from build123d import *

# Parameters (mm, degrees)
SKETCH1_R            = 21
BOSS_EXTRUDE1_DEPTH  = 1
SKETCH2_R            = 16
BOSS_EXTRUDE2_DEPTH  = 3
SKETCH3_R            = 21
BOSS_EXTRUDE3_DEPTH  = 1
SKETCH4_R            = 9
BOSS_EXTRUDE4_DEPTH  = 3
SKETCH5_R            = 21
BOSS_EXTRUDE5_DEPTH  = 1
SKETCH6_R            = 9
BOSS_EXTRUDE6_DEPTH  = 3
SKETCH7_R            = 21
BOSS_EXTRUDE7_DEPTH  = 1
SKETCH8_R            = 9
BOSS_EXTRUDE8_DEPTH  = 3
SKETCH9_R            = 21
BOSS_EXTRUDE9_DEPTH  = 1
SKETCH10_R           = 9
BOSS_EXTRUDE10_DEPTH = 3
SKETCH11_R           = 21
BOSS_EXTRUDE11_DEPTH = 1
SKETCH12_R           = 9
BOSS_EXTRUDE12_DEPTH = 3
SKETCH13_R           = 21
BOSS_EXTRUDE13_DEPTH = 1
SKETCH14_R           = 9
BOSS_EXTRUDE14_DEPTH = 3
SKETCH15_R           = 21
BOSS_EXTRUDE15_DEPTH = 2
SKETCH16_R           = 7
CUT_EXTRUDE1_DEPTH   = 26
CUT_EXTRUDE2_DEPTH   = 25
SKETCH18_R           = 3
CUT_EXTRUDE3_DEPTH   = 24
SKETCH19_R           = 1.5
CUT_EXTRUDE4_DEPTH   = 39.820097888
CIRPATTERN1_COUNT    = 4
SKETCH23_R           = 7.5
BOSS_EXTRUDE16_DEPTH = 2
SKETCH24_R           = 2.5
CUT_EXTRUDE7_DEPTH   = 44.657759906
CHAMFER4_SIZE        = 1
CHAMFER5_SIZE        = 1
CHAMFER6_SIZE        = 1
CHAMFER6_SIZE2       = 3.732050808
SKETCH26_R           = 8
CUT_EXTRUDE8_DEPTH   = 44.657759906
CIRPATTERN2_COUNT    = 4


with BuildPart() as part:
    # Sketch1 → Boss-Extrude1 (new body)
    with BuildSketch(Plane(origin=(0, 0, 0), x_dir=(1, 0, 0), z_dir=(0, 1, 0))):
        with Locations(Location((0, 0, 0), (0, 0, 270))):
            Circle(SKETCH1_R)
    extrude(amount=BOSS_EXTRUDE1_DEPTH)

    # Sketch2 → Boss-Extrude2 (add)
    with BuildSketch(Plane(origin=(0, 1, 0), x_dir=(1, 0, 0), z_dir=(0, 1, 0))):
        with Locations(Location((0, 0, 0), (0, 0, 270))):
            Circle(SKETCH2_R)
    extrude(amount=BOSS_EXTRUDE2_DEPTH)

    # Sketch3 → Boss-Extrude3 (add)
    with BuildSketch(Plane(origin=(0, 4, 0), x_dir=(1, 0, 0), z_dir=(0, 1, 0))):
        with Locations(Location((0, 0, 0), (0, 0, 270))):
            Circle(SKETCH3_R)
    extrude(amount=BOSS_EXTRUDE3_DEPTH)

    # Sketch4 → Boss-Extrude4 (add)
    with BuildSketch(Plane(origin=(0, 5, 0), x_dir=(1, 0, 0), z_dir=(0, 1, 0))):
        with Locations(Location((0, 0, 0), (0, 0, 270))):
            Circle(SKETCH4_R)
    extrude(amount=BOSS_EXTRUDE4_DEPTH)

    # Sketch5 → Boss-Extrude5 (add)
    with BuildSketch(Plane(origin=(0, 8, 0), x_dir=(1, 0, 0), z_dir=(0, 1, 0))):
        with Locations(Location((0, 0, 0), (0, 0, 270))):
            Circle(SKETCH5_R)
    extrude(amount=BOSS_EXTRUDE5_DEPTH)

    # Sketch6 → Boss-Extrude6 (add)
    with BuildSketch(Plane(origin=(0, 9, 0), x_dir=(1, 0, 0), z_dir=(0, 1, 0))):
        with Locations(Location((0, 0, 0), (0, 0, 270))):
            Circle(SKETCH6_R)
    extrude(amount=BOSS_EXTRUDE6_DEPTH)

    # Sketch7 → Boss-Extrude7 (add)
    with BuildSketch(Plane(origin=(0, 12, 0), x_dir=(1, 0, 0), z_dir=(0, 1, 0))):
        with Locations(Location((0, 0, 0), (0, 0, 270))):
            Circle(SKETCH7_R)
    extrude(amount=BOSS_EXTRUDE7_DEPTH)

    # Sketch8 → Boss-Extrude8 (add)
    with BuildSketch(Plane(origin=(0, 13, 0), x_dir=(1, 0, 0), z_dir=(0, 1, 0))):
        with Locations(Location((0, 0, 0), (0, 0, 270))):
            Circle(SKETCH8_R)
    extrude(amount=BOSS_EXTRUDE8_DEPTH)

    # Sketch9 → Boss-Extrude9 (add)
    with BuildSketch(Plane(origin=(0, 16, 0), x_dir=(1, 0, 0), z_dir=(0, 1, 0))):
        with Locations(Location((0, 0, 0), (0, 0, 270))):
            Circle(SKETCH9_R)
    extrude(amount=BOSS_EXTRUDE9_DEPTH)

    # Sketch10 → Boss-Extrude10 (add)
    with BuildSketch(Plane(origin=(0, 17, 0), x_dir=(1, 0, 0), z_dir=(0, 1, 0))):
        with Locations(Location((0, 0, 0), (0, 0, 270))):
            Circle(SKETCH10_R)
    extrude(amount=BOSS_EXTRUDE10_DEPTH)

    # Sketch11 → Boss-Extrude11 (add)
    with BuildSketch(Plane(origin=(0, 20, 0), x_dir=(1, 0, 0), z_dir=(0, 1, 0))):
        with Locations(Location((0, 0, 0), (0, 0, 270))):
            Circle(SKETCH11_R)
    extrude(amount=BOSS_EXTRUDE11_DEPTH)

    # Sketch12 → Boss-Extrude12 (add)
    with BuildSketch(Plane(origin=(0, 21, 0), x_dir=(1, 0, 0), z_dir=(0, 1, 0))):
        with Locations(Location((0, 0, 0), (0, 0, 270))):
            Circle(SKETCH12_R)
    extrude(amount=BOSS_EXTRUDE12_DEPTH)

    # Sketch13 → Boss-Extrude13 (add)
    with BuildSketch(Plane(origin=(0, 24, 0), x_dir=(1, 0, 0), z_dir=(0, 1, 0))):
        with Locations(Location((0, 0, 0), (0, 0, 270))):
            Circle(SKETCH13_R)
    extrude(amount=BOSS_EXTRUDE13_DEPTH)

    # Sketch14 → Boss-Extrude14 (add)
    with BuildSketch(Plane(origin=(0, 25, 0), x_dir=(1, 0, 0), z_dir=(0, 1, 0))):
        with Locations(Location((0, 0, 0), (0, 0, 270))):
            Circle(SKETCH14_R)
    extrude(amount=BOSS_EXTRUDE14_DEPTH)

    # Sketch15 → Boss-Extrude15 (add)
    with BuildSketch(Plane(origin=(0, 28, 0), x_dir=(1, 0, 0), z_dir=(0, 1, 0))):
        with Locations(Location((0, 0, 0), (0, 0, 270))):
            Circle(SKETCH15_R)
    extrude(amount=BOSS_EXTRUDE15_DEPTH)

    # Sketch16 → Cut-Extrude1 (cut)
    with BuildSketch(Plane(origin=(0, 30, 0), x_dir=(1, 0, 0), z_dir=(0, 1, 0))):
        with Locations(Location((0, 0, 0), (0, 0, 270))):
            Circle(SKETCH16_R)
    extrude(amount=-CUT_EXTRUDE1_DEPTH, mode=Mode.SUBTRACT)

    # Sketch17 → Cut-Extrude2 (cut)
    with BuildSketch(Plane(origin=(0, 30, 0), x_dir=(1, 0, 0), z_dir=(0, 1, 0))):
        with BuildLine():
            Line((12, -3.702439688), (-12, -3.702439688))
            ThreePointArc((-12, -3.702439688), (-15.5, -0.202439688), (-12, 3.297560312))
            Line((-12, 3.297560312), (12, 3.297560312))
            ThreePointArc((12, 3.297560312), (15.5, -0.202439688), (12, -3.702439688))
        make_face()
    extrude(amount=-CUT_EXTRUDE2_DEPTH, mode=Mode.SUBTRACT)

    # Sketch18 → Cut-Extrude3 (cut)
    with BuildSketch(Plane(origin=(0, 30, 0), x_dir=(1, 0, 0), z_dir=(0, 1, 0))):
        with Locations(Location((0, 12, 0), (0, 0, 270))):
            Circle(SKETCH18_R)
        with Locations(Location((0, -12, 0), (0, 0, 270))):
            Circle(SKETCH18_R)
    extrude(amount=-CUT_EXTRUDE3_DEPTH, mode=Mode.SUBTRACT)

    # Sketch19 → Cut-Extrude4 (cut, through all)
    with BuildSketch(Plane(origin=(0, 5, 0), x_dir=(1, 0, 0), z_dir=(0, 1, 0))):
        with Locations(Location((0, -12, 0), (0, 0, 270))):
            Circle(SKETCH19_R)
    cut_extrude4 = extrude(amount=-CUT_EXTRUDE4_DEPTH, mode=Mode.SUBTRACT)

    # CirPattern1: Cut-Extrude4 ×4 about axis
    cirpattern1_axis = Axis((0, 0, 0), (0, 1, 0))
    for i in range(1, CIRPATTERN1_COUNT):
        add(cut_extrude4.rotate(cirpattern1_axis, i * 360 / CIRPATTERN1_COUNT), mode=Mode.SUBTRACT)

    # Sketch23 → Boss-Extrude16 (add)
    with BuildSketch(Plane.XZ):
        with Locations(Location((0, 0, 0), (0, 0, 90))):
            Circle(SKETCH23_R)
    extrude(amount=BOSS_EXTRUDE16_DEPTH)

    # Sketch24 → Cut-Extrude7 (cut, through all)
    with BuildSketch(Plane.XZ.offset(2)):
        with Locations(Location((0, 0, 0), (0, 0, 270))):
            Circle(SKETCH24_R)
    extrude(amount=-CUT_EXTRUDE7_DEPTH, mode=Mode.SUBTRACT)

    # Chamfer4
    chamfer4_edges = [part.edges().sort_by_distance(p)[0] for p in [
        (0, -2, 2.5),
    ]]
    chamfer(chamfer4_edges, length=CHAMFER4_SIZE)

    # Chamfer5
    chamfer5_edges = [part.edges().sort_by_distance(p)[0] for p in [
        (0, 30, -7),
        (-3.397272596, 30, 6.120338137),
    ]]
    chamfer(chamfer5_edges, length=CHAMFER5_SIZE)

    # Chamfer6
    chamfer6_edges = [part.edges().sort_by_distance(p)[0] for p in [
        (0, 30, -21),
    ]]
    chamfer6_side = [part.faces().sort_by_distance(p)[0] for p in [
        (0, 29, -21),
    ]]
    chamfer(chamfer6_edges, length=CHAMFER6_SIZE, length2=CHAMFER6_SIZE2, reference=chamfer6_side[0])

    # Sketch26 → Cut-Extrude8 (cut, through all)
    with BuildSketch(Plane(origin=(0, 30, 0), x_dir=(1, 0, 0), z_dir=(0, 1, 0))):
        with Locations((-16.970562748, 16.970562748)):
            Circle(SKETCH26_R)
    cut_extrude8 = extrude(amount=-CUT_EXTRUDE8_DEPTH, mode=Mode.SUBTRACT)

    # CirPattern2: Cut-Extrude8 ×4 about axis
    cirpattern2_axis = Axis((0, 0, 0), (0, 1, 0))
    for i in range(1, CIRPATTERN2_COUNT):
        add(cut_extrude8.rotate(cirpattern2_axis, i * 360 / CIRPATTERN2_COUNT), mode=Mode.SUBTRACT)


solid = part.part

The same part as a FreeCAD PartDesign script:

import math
import FreeCAD as App
import Part
import Sketcher

V = App.Vector
Q = App.Units.Quantity


def edges_at(feature, points):
    """Names of the edges that pass closest to the given points."""
    edges = feature.Shape.Edges
    near = lambda p: min(range(len(edges)), key=lambda i: edges[i].distToShape(Part.Vertex(*p))[0])
    return sorted({f"Edge{near(p) + 1}" for p in points})

doc = App.newDocument("Part")
body = doc.addObject("PartDesign::Body", "Body")

# Sketch on XZ plane
sketch1 = doc.addObject("Sketcher::SketchObject", "Sketch")
body.addObject(sketch1)
sketch1.AttachmentSupport = (doc.XZ_Plane, [""])
sketch1.MapMode = "FlatFace"
sketch1.addGeometry(Part.Circle(V(0, 0, 0), V(0, 0, 1), 21), False)
sketch1.addConstraint([
    Sketcher.Constraint("Coincident", 0, 3, -1, 1),
    Sketcher.Constraint("Diameter", 0, Q("42 mm")),
])
pad1 = doc.addObject("PartDesign::Pad", "Pad")
body.addObject(pad1)
pad1.Profile = sketch1
pad1.Length = 1
pad1.Reversed = True

# Sketch on XZ plane
sketch2 = doc.addObject("Sketcher::SketchObject", "Sketch001")
body.addObject(sketch2)
sketch2.AttachmentSupport = (doc.XZ_Plane, [""])
sketch2.MapMode = "FlatFace"
sketch2.AttachmentOffset = App.Placement(V(0, 0, -1), App.Rotation())
sketch2.addGeometry(Part.Circle(V(0, 0, 0), V(0, 0, 1), 16), False)
sketch2.addConstraint([
    Sketcher.Constraint("Coincident", 0, 3, -1, 1),
    Sketcher.Constraint("Diameter", 0, Q("32 mm")),
])
pad2 = doc.addObject("PartDesign::Pad", "Pad001")
body.addObject(pad2)
pad2.Profile = sketch2
pad2.Length = 3
pad2.Reversed = True

# Sketch on XZ plane
sketch3 = doc.addObject("Sketcher::SketchObject", "Sketch002")
body.addObject(sketch3)
sketch3.AttachmentSupport = (doc.XZ_Plane, [""])
sketch3.MapMode = "FlatFace"
sketch3.AttachmentOffset = App.Placement(V(0, 0, -4), App.Rotation())
sketch3.addGeometry(Part.Circle(V(0, 0, 0), V(0, 0, 1), 21), False)
sketch3.addConstraint([
    Sketcher.Constraint("Coincident", 0, 3, -1, 1),
    Sketcher.Constraint("Diameter", 0, Q("42 mm")),
])
pad3 = doc.addObject("PartDesign::Pad", "Pad002")
body.addObject(pad3)
pad3.Profile = sketch3
pad3.Length = 1
pad3.Reversed = True

# Sketch on XZ plane
sketch4 = doc.addObject("Sketcher::SketchObject", "Sketch003")
body.addObject(sketch4)
sketch4.AttachmentSupport = (doc.XZ_Plane, [""])
sketch4.MapMode = "FlatFace"
sketch4.AttachmentOffset = App.Placement(V(0, 0, -5), App.Rotation())
sketch4.addGeometry(Part.Circle(V(0, 0, 0), V(0, 0, 1), 9), False)
sketch4.addConstraint([
    Sketcher.Constraint("Coincident", 0, 3, -1, 1),
    Sketcher.Constraint("Diameter", 0, Q("18 mm")),
])
pad4 = doc.addObject("PartDesign::Pad", "Pad003")
body.addObject(pad4)
pad4.Profile = sketch4
pad4.Length = 3
pad4.Reversed = True

# Sketch on XZ plane
sketch5 = doc.addObject("Sketcher::SketchObject", "Sketch004")
body.addObject(sketch5)
sketch5.AttachmentSupport = (doc.XZ_Plane, [""])
sketch5.MapMode = "FlatFace"
sketch5.AttachmentOffset = App.Placement(V(0, 0, -8), App.Rotation())
sketch5.addGeometry(Part.Circle(V(0, 0, 0), V(0, 0, 1), 21), False)
sketch5.addConstraint([
    Sketcher.Constraint("Coincident", 0, 3, -1, 1),
    Sketcher.Constraint("Diameter", 0, Q("42 mm")),
])
pad5 = doc.addObject("PartDesign::Pad", "Pad004")
body.addObject(pad5)
pad5.Profile = sketch5
pad5.Length = 1
pad5.Reversed = True

# Sketch on XZ plane
sketch6 = doc.addObject("Sketcher::SketchObject", "Sketch005")
body.addObject(sketch6)
sketch6.AttachmentSupport = (doc.XZ_Plane, [""])
sketch6.MapMode = "FlatFace"
sketch6.AttachmentOffset = App.Placement(V(0, 0, -9), App.Rotation())
sketch6.addGeometry(Part.Circle(V(0, 0, 0), V(0, 0, 1), 9), False)
sketch6.addConstraint([
    Sketcher.Constraint("Coincident", 0, 3, -1, 1),
    Sketcher.Constraint("Diameter", 0, Q("18 mm")),
])
pad6 = doc.addObject("PartDesign::Pad", "Pad005")
body.addObject(pad6)
pad6.Profile = sketch6
pad6.Length = 3
pad6.Reversed = True

# Sketch on XZ plane
sketch7 = doc.addObject("Sketcher::SketchObject", "Sketch006")
body.addObject(sketch7)
sketch7.AttachmentSupport = (doc.XZ_Plane, [""])
sketch7.MapMode = "FlatFace"
sketch7.AttachmentOffset = App.Placement(V(0, 0, -12), App.Rotation())
sketch7.addGeometry(Part.Circle(V(0, 0, 0), V(0, 0, 1), 21), False)
sketch7.addConstraint([
    Sketcher.Constraint("Coincident", 0, 3, -1, 1),
    Sketcher.Constraint("Diameter", 0, Q("42 mm")),
])
pad7 = doc.addObject("PartDesign::Pad", "Pad006")
body.addObject(pad7)
pad7.Profile = sketch7
pad7.Length = 1
pad7.Reversed = True

# Sketch on XZ plane
sketch8 = doc.addObject("Sketcher::SketchObject", "Sketch007")
body.addObject(sketch8)
sketch8.AttachmentSupport = (doc.XZ_Plane, [""])
sketch8.MapMode = "FlatFace"
sketch8.AttachmentOffset = App.Placement(V(0, 0, -13), App.Rotation())
sketch8.addGeometry(Part.Circle(V(0, 0, 0), V(0, 0, 1), 9), False)
sketch8.addConstraint([
    Sketcher.Constraint("Coincident", 0, 3, -1, 1),
    Sketcher.Constraint("Diameter", 0, Q("18 mm")),
])
pad8 = doc.addObject("PartDesign::Pad", "Pad007")
body.addObject(pad8)
pad8.Profile = sketch8
pad8.Length = 3
pad8.Reversed = True

# Sketch on XZ plane
sketch9 = doc.addObject("Sketcher::SketchObject", "Sketch008")
body.addObject(sketch9)
sketch9.AttachmentSupport = (doc.XZ_Plane, [""])
sketch9.MapMode = "FlatFace"
sketch9.AttachmentOffset = App.Placement(V(0, 0, -16), App.Rotation())
sketch9.addGeometry(Part.Circle(V(0, 0, 0), V(0, 0, 1), 21), False)
sketch9.addConstraint([
    Sketcher.Constraint("Coincident", 0, 3, -1, 1),
    Sketcher.Constraint("Diameter", 0, Q("42 mm")),
])
pad9 = doc.addObject("PartDesign::Pad", "Pad008")
body.addObject(pad9)
pad9.Profile = sketch9
pad9.Length = 1
pad9.Reversed = True

# Sketch on XZ plane
sketch10 = doc.addObject("Sketcher::SketchObject", "Sketch009")
body.addObject(sketch10)
sketch10.AttachmentSupport = (doc.XZ_Plane, [""])
sketch10.MapMode = "FlatFace"
sketch10.AttachmentOffset = App.Placement(V(0, 0, -17), App.Rotation())
sketch10.addGeometry(Part.Circle(V(0, 0, 0), V(0, 0, 1), 9), False)
sketch10.addConstraint([
    Sketcher.Constraint("Coincident", 0, 3, -1, 1),
    Sketcher.Constraint("Diameter", 0, Q("18 mm")),
])
pad10 = doc.addObject("PartDesign::Pad", "Pad009")
body.addObject(pad10)
pad10.Profile = sketch10
pad10.Length = 3
pad10.Reversed = True

# Sketch on XZ plane
sketch11 = doc.addObject("Sketcher::SketchObject", "Sketch010")
body.addObject(sketch11)
sketch11.AttachmentSupport = (doc.XZ_Plane, [""])
sketch11.MapMode = "FlatFace"
sketch11.AttachmentOffset = App.Placement(V(0, 0, -20), App.Rotation())
sketch11.addGeometry(Part.Circle(V(0, 0, 0), V(0, 0, 1), 21), False)
sketch11.addConstraint([
    Sketcher.Constraint("Coincident", 0, 3, -1, 1),
    Sketcher.Constraint("Diameter", 0, Q("42 mm")),
])
pad11 = doc.addObject("PartDesign::Pad", "Pad010")
body.addObject(pad11)
pad11.Profile = sketch11
pad11.Length = 1
pad11.Reversed = True

# Sketch on XZ plane
sketch12 = doc.addObject("Sketcher::SketchObject", "Sketch011")
body.addObject(sketch12)
sketch12.AttachmentSupport = (doc.XZ_Plane, [""])
sketch12.MapMode = "FlatFace"
sketch12.AttachmentOffset = App.Placement(V(0, 0, -21), App.Rotation())
sketch12.addGeometry(Part.Circle(V(0, 0, 0), V(0, 0, 1), 9), False)
sketch12.addConstraint([
    Sketcher.Constraint("Coincident", 0, 3, -1, 1),
    Sketcher.Constraint("Diameter", 0, Q("18 mm")),
])
pad12 = doc.addObject("PartDesign::Pad", "Pad011")
body.addObject(pad12)
pad12.Profile = sketch12
pad12.Length = 3
pad12.Reversed = True

# Sketch on XZ plane
sketch13 = doc.addObject("Sketcher::SketchObject", "Sketch012")
body.addObject(sketch13)
sketch13.AttachmentSupport = (doc.XZ_Plane, [""])
sketch13.MapMode = "FlatFace"
sketch13.AttachmentOffset = App.Placement(V(0, 0, -24), App.Rotation())
sketch13.addGeometry(Part.Circle(V(0, 0, 0), V(0, 0, 1), 21), False)
sketch13.addConstraint([
    Sketcher.Constraint("Coincident", 0, 3, -1, 1),
    Sketcher.Constraint("Diameter", 0, Q("42 mm")),
])
pad13 = doc.addObject("PartDesign::Pad", "Pad012")
body.addObject(pad13)
pad13.Profile = sketch13
pad13.Length = 1
pad13.Reversed = True

# Sketch on XZ plane
sketch14 = doc.addObject("Sketcher::SketchObject", "Sketch013")
body.addObject(sketch14)
sketch14.AttachmentSupport = (doc.XZ_Plane, [""])
sketch14.MapMode = "FlatFace"
sketch14.AttachmentOffset = App.Placement(V(0, 0, -25), App.Rotation())
sketch14.addGeometry(Part.Circle(V(0, 0, 0), V(0, 0, 1), 9), False)
sketch14.addConstraint([
    Sketcher.Constraint("Coincident", 0, 3, -1, 1),
    Sketcher.Constraint("Diameter", 0, Q("18 mm")),
])
pad14 = doc.addObject("PartDesign::Pad", "Pad013")
body.addObject(pad14)
pad14.Profile = sketch14
pad14.Length = 3
pad14.Reversed = True

# Sketch on XZ plane
sketch15 = doc.addObject("Sketcher::SketchObject", "Sketch014")
body.addObject(sketch15)
sketch15.AttachmentSupport = (doc.XZ_Plane, [""])
sketch15.MapMode = "FlatFace"
sketch15.AttachmentOffset = App.Placement(V(0, 0, -28), App.Rotation())
sketch15.addGeometry(Part.Circle(V(0, 0, 0), V(0, 0, 1), 21), False)
sketch15.addConstraint([
    Sketcher.Constraint("Coincident", 0, 3, -1, 1),
    Sketcher.Constraint("Diameter", 0, Q("42 mm")),
])
pad15 = doc.addObject("PartDesign::Pad", "Pad014")
body.addObject(pad15)
pad15.Profile = sketch15
pad15.Length = 2
pad15.Reversed = True

# Sketch on XZ plane
sketch16 = doc.addObject("Sketcher::SketchObject", "Sketch015")
body.addObject(sketch16)
sketch16.AttachmentSupport = (doc.XZ_Plane, [""])
sketch16.MapMode = "FlatFace"
sketch16.AttachmentOffset = App.Placement(V(0, 0, -30), App.Rotation())
sketch16.addGeometry(Part.Circle(V(0, 0, 0), V(0, 0, 1), 7), False)
sketch16.addConstraint([
    Sketcher.Constraint("Coincident", 0, 3, -1, 1),
    Sketcher.Constraint("Diameter", 0, Q("14 mm")),
])
pocket1 = doc.addObject("PartDesign::Pocket", "Pocket")
body.addObject(pocket1)
pocket1.Profile = sketch16
pocket1.Length = 26
pocket1.Reversed = True

# Sketch on XZ plane
sketch17 = doc.addObject("Sketcher::SketchObject", "Sketch016")
body.addObject(sketch17)
sketch17.AttachmentSupport = (doc.XZ_Plane, [""])
sketch17.MapMode = "FlatFace"
sketch17.AttachmentOffset = App.Placement(V(0, 0, -30), App.Rotation())
sketch17.addGeometry([
    Part.LineSegment(V(-12, 3.70244, 0), V(12, 3.70244, 0)),
    Part.ArcOfCircle(Part.Circle(V(12, 0.20244, 0), V(0, 0, 1), 3.5), math.radians(-90), math.radians(90)),
    Part.LineSegment(V(12, -3.29756, 0), V(-12, -3.29756, 0)),
    Part.ArcOfCircle(Part.Circle(V(-12, 0.20244, 0), V(0, 0, 1), 3.5), math.radians(90), math.radians(270)),
], False)
sketch17.addConstraint([
    Sketcher.Constraint("Tangent", 0, 2, 1, 2),
    Sketcher.Constraint("Tangent", 1, 1, 2, 1),
    Sketcher.Constraint("Tangent", 2, 2, 3, 2),
    Sketcher.Constraint("Tangent", 3, 1, 0, 1),
    Sketcher.Constraint("Horizontal", 0),
    Sketcher.Constraint("Horizontal", 2),
    Sketcher.Constraint("Radius", 1, Q("3.5 mm")),
    Sketcher.Constraint("DistanceX", 0, 1, 0, 2, Q("24 mm")),
    Sketcher.Constraint("DistanceX", -1, 1, 1, 3, Q("12 mm")),
    Sketcher.Constraint("DistanceY", -1, 1, 1, 3, Q("0.20244 mm")),
])
pocket2 = doc.addObject("PartDesign::Pocket", "Pocket001")
body.addObject(pocket2)
pocket2.Profile = sketch17
pocket2.Length = 25
pocket2.Reversed = True

# Sketch on XZ plane
sketch18 = doc.addObject("Sketcher::SketchObject", "Sketch017")
body.addObject(sketch18)
sketch18.AttachmentSupport = (doc.XZ_Plane, [""])
sketch18.MapMode = "FlatFace"
sketch18.AttachmentOffset = App.Placement(V(0, 0, -30), App.Rotation())
sketch18.addGeometry([
    Part.Circle(V(0, -12, 0), V(0, 0, 1), 3),
    Part.Circle(V(0, 12, 0), V(0, 0, 1), 3),
], False)
sketch18.addConstraint([
    Sketcher.Constraint("Equal", 0, 1),
    Sketcher.Constraint("Symmetric", 0, 3, 1, 3, -1, 1),
    Sketcher.Constraint("PointOnObject", 0, 3, -2),
    Sketcher.Constraint("Diameter", 0, Q("6 mm")),
    Sketcher.Constraint("DistanceY", 0, 3, -1, 1, Q("12 mm")),
])
pocket3 = doc.addObject("PartDesign::Pocket", "Pocket002")
body.addObject(pocket3)
pocket3.Profile = sketch18
pocket3.Length = 24
pocket3.Reversed = True

# Sketch on XZ plane
sketch19 = doc.addObject("Sketcher::SketchObject", "Sketch018")
body.addObject(sketch19)
sketch19.AttachmentSupport = (doc.XZ_Plane, [""])
sketch19.MapMode = "FlatFace"
sketch19.AttachmentOffset = App.Placement(V(0, 0, -5), App.Rotation())
sketch19.addGeometry(Part.Circle(V(0, 12, 0), V(0, 0, 1), 1.5), False)
sketch19.addConstraint([
    Sketcher.Constraint("PointOnObject", 0, 3, -2),
    Sketcher.Constraint("Diameter", 0, Q("3 mm")),
    Sketcher.Constraint("DistanceY", -1, 1, 0, 3, Q("12 mm")),
])
pocket4 = doc.addObject("PartDesign::Pocket", "Pocket003")
body.addObject(pocket4)
pocket4.Profile = sketch19
pocket4.Type = "ThroughAll"
pocket4.Reversed = True
doc.recompute()

polarpattern = doc.addObject("PartDesign::PolarPattern", "PolarPattern")
body.addObject(polarpattern)
polarpattern.Originals = [pocket4]
polarpattern.Axis = (doc.Y_Axis, [""])
polarpattern.Angle = 360
polarpattern.Occurrences = 4
body.Tip = polarpattern

# Sketch on XZ plane
sketch20 = doc.addObject("Sketcher::SketchObject", "Sketch019")
body.addObject(sketch20)
sketch20.AttachmentSupport = (doc.XZ_Plane, [""])
sketch20.MapMode = "FlatFace"
sketch20.addGeometry(Part.Circle(V(0, 0, 0), V(0, 0, 1), 7.5), False)
sketch20.addConstraint([
    Sketcher.Constraint("Coincident", 0, 3, -1, 1),
    Sketcher.Constraint("Diameter", 0, Q("15 mm")),
])
pad16 = doc.addObject("PartDesign::Pad", "Pad015")
body.addObject(pad16)
pad16.Profile = sketch20
pad16.Length = 2

# Sketch on XZ plane
sketch21 = doc.addObject("Sketcher::SketchObject", "Sketch020")
body.addObject(sketch21)
sketch21.AttachmentSupport = (doc.XZ_Plane, [""])
sketch21.MapMode = "FlatFace"
sketch21.AttachmentOffset = App.Placement(V(0, 0, 2), App.Rotation())
sketch21.addGeometry(Part.Circle(V(0, 0, 0), V(0, 0, 1), 2.5), False)
sketch21.addConstraint([
    Sketcher.Constraint("Coincident", 0, 3, -1, 1),
    Sketcher.Constraint("Diameter", 0, Q("5 mm")),
])
pocket5 = doc.addObject("PartDesign::Pocket", "Pocket004")
body.addObject(pocket5)
pocket5.Profile = sketch21
pocket5.Type = "ThroughAll"
doc.recompute()

chamfer = doc.addObject("PartDesign::Chamfer", "Chamfer")
body.addObject(chamfer)
chamfer.Base = (pocket5, edges_at(pocket5, [(0, -2, 2.5)]))
chamfer.Size = 1
doc.recompute()

chamfer2 = doc.addObject("PartDesign::Chamfer", "Chamfer001")
body.addObject(chamfer2)
chamfer2.Base = (chamfer, edges_at(chamfer, [(0, 30, -7), (-3.397, 30, 6.12)]))
chamfer2.Size = 1
doc.recompute()

chamfer3 = doc.addObject("PartDesign::Chamfer", "Chamfer002")
body.addObject(chamfer3)
chamfer3.Base = (chamfer2, edges_at(chamfer2, [(0, 30, -21)]))
chamfer3.ChamferType = "Two distances"
chamfer3.Size = 1
chamfer3.Size2 = 3.732051
chamfer3.FlipDirection = True

# Sketch on XZ plane
sketch22 = doc.addObject("Sketcher::SketchObject", "Sketch021")
body.addObject(sketch22)
sketch22.AttachmentSupport = (doc.XZ_Plane, [""])
sketch22.MapMode = "FlatFace"
sketch22.AttachmentOffset = App.Placement(V(0, 0, -30), App.Rotation())
sketch22.addGeometry(Part.Circle(V(-16.970563, -16.970563, 0), V(0, 0, 1), 8), False)
sketch22.addConstraint([
    Sketcher.Constraint("Diameter", 0, Q("16 mm")),
    Sketcher.Constraint("DistanceX", 0, 3, -1, 1, Q("16.970563 mm")),
    Sketcher.Constraint("DistanceY", 0, 3, -1, 1, Q("16.970563 mm")),
])
pocket6 = doc.addObject("PartDesign::Pocket", "Pocket005")
body.addObject(pocket6)
pocket6.Profile = sketch22
pocket6.Type = "ThroughAll"
pocket6.Reversed = True
doc.recompute()

polarpattern2 = doc.addObject("PartDesign::PolarPattern", "PolarPattern001")
body.addObject(polarpattern2)
polarpattern2.Originals = [pocket6]
polarpattern2.Axis = (doc.Y_Axis, [""])
polarpattern2.Angle = 360
polarpattern2.Occurrences = 4
body.Tip = polarpattern2

doc.recompute()
